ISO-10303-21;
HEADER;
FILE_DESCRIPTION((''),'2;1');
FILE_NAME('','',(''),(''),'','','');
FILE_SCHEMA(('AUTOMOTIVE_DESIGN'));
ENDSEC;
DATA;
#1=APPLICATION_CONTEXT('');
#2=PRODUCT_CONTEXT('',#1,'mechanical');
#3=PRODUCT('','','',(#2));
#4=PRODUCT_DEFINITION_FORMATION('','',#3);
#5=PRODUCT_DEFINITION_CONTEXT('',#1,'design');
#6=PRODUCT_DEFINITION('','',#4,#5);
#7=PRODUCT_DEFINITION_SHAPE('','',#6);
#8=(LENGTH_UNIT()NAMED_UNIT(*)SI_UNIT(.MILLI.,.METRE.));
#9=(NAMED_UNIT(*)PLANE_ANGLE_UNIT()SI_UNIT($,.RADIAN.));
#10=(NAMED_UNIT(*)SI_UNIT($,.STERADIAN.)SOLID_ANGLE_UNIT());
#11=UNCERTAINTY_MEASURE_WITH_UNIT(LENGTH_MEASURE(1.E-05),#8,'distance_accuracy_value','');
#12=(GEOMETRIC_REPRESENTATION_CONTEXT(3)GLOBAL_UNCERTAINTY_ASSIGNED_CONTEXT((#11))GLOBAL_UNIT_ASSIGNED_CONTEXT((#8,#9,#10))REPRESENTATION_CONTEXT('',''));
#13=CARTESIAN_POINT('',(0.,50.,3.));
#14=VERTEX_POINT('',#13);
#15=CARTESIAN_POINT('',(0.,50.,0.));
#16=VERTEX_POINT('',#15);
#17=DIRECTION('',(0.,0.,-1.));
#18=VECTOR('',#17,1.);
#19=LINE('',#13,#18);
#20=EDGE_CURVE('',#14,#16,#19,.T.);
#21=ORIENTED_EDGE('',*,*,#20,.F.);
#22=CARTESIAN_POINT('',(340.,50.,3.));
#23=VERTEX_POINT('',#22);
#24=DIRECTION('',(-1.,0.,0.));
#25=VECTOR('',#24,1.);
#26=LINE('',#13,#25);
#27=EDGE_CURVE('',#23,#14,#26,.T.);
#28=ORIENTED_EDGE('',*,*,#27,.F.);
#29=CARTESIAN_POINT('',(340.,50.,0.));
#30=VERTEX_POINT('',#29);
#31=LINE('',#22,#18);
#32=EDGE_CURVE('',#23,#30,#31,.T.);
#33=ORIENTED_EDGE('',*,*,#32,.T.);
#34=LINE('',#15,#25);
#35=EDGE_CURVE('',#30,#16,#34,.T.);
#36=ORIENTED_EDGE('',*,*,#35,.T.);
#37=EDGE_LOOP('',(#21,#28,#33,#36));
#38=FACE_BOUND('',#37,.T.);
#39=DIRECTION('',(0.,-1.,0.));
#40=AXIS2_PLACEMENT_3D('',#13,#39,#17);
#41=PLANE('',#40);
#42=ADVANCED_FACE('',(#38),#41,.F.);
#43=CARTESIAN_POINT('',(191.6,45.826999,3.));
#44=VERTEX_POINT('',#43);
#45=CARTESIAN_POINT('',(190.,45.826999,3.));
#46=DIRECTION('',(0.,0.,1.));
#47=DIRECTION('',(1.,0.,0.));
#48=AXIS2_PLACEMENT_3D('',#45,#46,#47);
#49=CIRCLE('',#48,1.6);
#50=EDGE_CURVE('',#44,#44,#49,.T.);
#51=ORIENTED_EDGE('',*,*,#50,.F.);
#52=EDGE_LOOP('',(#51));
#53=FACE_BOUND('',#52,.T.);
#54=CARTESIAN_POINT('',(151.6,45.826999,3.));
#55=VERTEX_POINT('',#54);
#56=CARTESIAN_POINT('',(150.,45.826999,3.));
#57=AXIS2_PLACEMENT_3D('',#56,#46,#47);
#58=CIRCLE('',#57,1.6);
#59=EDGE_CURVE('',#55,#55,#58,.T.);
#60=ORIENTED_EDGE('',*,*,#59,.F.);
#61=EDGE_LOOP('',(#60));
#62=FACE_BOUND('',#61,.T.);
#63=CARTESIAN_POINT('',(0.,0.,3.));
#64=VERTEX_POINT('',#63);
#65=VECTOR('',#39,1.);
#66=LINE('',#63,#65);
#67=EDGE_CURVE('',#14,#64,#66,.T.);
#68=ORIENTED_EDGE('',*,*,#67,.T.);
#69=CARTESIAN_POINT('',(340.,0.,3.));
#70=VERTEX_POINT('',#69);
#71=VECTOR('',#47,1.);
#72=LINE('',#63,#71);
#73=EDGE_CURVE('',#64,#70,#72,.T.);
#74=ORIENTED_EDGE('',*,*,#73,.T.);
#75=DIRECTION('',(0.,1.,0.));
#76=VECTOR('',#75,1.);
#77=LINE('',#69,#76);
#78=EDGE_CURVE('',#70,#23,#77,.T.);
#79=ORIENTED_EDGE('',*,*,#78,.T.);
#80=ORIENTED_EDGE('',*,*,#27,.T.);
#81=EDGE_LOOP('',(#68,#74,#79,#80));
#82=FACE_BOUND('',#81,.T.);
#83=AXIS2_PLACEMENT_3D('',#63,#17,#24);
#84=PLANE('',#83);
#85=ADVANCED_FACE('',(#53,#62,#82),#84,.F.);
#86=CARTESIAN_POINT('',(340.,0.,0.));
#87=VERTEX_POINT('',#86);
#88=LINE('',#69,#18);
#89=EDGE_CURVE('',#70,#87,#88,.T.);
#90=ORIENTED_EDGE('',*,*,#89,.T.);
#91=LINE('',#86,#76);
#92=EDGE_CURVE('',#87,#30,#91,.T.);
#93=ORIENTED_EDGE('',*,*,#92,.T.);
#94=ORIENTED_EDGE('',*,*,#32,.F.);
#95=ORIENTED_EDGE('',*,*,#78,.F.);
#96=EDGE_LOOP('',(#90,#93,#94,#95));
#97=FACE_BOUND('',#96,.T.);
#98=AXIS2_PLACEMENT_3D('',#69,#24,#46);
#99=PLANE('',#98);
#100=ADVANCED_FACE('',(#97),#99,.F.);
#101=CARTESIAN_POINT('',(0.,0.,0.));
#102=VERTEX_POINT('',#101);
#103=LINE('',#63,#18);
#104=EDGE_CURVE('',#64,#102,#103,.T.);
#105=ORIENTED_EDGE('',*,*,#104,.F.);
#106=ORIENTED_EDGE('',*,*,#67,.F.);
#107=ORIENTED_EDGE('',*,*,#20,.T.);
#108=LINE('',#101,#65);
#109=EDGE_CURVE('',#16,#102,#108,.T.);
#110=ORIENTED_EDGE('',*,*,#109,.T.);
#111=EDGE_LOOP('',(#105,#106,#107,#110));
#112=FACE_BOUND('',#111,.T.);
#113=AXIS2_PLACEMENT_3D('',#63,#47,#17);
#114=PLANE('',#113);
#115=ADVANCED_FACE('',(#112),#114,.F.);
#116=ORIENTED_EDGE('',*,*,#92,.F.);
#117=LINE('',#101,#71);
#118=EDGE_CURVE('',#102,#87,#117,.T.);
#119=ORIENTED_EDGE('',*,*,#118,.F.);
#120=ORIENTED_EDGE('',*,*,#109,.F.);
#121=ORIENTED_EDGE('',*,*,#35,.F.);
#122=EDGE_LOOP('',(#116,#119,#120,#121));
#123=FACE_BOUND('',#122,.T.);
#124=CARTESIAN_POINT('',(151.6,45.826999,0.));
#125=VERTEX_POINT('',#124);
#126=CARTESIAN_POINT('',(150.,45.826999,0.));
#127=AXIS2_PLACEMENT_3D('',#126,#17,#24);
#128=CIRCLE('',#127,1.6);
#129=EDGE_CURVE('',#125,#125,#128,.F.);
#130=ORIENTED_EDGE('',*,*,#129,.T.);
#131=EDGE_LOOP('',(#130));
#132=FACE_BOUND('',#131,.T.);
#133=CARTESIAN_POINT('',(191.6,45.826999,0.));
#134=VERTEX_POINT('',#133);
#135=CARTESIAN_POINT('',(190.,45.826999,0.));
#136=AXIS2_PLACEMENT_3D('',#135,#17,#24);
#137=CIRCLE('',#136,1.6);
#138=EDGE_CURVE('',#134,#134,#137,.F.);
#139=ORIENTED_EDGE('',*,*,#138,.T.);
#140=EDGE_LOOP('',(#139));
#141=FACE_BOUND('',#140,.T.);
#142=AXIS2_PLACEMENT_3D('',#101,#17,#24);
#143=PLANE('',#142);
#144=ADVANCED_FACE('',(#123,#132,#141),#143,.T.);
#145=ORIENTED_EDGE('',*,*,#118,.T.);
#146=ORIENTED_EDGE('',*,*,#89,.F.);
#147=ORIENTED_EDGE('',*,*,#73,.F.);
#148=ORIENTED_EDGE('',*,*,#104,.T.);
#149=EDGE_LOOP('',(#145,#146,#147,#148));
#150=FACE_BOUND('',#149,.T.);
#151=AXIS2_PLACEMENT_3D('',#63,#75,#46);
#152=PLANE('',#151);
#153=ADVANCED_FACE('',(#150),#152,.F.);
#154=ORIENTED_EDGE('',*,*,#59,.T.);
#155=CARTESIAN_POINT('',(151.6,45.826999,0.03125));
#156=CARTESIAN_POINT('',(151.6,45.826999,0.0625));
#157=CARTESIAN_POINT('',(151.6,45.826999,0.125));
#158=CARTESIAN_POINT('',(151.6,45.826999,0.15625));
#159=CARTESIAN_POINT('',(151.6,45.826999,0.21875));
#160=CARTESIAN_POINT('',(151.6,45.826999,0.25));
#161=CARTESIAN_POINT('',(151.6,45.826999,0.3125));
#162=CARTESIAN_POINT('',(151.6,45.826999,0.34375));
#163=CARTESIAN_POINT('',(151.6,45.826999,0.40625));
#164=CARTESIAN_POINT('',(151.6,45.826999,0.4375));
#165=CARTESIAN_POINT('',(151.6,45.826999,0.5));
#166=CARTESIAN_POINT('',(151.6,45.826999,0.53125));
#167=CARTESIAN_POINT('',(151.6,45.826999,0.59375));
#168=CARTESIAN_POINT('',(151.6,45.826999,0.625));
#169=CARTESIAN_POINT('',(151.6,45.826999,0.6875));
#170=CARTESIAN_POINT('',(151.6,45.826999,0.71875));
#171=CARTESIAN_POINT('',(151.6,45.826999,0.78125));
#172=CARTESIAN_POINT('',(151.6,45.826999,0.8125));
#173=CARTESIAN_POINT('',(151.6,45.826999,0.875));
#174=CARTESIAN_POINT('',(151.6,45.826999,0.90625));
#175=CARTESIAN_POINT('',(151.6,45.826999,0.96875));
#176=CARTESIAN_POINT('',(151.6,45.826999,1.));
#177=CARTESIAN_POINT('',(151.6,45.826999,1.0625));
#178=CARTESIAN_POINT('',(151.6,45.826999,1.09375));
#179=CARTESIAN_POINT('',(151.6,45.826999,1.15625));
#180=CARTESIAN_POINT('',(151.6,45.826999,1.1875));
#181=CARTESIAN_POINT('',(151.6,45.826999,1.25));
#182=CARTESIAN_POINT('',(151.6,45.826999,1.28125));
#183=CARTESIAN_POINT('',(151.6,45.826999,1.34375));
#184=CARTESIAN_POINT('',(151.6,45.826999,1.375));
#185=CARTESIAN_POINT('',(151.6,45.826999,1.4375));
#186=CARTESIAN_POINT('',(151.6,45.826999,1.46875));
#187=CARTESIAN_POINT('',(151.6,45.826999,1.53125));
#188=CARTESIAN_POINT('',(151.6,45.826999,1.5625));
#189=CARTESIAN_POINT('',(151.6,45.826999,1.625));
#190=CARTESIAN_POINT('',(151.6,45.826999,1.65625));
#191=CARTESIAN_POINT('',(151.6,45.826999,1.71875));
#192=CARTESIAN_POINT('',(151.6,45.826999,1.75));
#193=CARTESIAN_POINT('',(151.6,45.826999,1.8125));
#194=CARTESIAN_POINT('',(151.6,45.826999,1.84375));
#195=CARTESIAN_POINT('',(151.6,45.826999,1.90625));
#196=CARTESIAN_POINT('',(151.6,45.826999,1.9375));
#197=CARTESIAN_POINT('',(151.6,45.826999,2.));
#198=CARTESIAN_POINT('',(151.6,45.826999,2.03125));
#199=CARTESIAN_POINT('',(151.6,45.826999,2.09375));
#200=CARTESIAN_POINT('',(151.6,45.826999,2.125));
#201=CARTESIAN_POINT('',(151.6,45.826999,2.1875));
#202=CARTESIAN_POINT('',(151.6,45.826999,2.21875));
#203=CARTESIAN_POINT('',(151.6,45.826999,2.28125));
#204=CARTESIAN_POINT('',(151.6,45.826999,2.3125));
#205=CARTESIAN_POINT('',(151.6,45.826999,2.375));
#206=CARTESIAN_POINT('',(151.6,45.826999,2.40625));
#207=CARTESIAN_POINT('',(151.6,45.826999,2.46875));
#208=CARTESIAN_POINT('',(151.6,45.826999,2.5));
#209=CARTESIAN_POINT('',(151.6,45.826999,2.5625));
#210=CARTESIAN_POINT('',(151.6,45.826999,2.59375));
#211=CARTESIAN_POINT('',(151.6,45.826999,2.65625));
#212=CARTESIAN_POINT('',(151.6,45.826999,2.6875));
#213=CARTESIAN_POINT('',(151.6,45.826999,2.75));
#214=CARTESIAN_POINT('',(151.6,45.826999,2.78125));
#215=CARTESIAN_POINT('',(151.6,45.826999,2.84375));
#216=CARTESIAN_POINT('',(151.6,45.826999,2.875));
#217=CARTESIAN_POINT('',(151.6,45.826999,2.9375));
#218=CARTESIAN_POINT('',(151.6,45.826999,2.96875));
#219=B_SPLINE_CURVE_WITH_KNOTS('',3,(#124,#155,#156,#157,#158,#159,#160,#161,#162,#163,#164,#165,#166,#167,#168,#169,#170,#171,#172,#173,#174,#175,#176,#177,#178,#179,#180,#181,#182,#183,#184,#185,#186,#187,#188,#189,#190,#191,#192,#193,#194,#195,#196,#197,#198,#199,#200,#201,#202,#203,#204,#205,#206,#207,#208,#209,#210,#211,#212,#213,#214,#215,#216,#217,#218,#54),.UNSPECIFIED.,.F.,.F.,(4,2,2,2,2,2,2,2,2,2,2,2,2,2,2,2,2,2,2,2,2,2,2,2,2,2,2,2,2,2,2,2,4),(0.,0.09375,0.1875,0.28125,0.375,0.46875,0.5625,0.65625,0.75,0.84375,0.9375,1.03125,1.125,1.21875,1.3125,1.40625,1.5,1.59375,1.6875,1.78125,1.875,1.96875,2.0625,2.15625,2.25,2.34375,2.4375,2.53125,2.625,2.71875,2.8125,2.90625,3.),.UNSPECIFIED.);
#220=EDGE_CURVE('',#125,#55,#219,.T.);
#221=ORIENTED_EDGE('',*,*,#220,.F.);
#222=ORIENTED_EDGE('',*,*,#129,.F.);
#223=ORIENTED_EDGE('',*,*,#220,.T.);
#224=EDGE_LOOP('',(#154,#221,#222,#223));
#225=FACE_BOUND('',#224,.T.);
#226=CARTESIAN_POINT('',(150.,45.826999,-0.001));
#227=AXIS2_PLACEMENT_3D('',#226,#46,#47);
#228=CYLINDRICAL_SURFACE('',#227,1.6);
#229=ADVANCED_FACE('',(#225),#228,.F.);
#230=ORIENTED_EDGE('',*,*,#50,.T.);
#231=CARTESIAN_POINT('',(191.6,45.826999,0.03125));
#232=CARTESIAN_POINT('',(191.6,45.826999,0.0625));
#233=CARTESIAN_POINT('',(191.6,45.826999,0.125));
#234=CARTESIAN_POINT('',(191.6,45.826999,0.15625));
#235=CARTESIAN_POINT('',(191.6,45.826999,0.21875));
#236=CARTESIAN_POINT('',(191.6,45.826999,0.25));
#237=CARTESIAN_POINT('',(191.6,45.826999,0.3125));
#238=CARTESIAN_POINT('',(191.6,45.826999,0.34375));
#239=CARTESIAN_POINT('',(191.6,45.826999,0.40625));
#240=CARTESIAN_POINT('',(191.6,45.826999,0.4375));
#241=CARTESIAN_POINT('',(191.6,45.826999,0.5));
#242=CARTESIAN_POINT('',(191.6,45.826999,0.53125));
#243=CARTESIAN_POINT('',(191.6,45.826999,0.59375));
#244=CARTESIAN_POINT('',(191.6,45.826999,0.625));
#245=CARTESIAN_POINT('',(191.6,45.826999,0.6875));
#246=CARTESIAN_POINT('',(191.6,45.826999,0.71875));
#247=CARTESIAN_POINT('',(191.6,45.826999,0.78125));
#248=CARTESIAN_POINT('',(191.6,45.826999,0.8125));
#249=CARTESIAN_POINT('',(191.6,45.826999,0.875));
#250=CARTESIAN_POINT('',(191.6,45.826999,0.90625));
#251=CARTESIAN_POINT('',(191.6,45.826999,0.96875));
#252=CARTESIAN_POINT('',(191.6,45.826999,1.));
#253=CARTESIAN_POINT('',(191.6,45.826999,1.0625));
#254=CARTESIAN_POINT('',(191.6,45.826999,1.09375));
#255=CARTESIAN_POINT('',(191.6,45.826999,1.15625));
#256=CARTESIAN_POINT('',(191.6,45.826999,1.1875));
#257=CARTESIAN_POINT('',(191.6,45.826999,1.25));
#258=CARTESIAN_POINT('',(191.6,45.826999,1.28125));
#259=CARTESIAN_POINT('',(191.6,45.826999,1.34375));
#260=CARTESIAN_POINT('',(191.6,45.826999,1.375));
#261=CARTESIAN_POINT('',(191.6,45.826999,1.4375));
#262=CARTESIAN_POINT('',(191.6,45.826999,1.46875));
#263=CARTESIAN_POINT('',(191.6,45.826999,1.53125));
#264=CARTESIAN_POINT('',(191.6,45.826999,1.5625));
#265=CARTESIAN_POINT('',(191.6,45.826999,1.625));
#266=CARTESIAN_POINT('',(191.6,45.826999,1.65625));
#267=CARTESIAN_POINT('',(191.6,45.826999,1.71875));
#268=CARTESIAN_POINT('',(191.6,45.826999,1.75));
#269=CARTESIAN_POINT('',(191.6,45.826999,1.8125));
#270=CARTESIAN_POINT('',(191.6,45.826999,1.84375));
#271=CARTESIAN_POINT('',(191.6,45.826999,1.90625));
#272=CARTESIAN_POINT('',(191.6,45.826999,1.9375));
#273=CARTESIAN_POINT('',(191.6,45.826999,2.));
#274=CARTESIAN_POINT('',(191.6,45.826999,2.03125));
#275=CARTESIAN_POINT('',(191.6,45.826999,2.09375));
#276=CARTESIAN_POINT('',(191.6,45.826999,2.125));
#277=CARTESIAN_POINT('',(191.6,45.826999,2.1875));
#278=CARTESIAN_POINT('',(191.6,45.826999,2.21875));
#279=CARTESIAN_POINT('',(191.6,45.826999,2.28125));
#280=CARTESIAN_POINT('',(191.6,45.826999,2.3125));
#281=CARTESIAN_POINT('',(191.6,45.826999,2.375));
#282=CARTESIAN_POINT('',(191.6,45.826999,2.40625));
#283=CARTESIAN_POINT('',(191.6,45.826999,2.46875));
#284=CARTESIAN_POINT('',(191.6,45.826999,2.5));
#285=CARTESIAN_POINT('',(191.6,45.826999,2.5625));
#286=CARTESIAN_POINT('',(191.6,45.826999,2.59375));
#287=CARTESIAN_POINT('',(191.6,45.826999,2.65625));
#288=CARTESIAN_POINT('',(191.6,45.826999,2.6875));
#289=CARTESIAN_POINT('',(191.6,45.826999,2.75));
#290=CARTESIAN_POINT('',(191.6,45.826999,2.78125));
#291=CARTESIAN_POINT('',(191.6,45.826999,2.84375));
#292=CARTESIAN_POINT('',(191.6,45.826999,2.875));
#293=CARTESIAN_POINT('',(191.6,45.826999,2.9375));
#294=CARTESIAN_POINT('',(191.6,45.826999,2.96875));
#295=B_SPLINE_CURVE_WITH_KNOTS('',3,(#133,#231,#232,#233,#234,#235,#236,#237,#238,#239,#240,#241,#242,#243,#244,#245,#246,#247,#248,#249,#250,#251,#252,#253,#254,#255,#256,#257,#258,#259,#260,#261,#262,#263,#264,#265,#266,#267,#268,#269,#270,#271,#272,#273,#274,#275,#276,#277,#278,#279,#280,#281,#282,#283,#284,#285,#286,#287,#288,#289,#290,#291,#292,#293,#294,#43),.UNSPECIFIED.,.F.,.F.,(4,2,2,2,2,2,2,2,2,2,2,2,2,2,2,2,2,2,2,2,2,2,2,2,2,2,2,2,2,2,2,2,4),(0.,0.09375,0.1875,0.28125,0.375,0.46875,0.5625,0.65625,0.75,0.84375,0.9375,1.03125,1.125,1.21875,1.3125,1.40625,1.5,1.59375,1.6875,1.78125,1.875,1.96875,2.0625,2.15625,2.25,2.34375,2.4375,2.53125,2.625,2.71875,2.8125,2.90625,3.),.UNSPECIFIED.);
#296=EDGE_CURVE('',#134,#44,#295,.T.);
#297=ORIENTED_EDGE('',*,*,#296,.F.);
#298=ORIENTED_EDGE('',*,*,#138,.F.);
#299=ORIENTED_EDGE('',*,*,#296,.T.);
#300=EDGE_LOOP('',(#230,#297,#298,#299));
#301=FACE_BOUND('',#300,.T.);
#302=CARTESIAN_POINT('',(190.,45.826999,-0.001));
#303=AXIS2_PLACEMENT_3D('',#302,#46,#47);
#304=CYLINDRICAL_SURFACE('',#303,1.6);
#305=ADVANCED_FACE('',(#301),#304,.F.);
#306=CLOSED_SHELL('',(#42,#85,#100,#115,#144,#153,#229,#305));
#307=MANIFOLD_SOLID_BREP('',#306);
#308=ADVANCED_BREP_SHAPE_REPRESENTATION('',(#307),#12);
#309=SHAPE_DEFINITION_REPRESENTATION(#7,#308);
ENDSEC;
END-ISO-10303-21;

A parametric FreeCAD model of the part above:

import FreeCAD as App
import Part
import Sketcher
from FreeCAD import Vector
Q = App.Units.Quantity


def add_polygon(sketch, points):
    """Adds a closed chain of lines whose ends are joined by coincident constraints."""
    first, n = sketch.GeometryCount, len(points)
    for a, b in zip(points, points[1:] + points[:1]):
        sketch.addGeometry(Part.LineSegment(App.Vector(*a, 0), App.Vector(*b, 0)), False)
    for i in range(n):
        sketch.addConstraint(Sketcher.Constraint("Coincident", first + i, 2, first + (i + 1) % n, 1))

doc = App.newDocument("Part")
body = doc.addObject("PartDesign::Body", "Body")

# Sketch on XY plane
sketch1 = body.newObject("Sketcher::SketchObject", "Sketch")
sketch1.AttachmentSupport = (doc.getObject("XY_Plane"), [""])
sketch1.MapMode = "FlatFace"
add_polygon(sketch1, [(0, 50), (0, 0), (340, 0), (340, 50)])  # lines 0-3
sketch1.addConstraint([
    Sketcher.Constraint("Vertical", 0),
    Sketcher.Constraint("Horizontal", 1),
    Sketcher.Constraint("Vertical", 2),
    Sketcher.Constraint("Horizontal", 3),
    Sketcher.Constraint("Coincident", 0, 2, -1, 1),
    Sketcher.Constraint("DistanceX", 1, 1, 1, 2, Q("340 mm")),
    Sketcher.Constraint("DistanceY", 0, 2, 0, 1, Q("50 mm")),
])
pad1 = body.newObject("PartDesign::Pad", "Pad")
pad1.Profile = sketch1
pad1.Length = 3

# Sketch on XY plane
sketch2 = body.newObject("Sketcher::SketchObject", "Sketch001")
sketch2.AttachmentSupport = (doc.getObject("XY_Plane"), [""])
sketch2.MapMode = "FlatFace"
sketch2.AttachmentOffset = App.Placement(Vector(0, 0, 3), App.Rotation())
sketch2.addGeometry(Part.Circle(Vector(150, 45.8, 0), Vector(0, 0, 1), 1.6), False)
sketch2.addConstraint([
    Sketcher.Constraint("Diameter", 0, Q("3.2 mm")),
    Sketcher.Constraint("DistanceX", -1, 1, 0, 3, Q("150 mm")),
    Sketcher.Constraint("DistanceY", -1, 1, 0, 3, Q("45.826999 mm")),
])
pocket1 = body.newObject("PartDesign::Pocket", "Pocket")
pocket1.Profile = sketch2
pocket1.Type = "UpToFirst"

# Sketch on XY plane
sketch3 = body.newObject("Sketcher::SketchObject", "Sketch002")
sketch3.AttachmentSupport = (doc.getObject("XY_Plane"), [""])
sketch3.MapMode = "FlatFace"
sketch3.AttachmentOffset = App.Placement(Vector(0, 0, 3), App.Rotation())
sketch3.addGeometry(Part.Circle(Vector(190, 45.8, 0), Vector(0, 0, 1), 1.6), False)
sketch3.addConstraint([
    Sketcher.Constraint("Diameter", 0, Q("3.2 mm")),
    Sketcher.Constraint("DistanceX", -1, 1, 0, 3, Q("190 mm")),
    Sketcher.Constraint("DistanceY", -1, 1, 0, 3, Q("45.826999 mm")),
])
pocket2 = body.newObject("PartDesign::Pocket", "Pocket001")
pocket2.Profile = sketch3
pocket2.Type = "UpToFirst"

doc.recompute()
